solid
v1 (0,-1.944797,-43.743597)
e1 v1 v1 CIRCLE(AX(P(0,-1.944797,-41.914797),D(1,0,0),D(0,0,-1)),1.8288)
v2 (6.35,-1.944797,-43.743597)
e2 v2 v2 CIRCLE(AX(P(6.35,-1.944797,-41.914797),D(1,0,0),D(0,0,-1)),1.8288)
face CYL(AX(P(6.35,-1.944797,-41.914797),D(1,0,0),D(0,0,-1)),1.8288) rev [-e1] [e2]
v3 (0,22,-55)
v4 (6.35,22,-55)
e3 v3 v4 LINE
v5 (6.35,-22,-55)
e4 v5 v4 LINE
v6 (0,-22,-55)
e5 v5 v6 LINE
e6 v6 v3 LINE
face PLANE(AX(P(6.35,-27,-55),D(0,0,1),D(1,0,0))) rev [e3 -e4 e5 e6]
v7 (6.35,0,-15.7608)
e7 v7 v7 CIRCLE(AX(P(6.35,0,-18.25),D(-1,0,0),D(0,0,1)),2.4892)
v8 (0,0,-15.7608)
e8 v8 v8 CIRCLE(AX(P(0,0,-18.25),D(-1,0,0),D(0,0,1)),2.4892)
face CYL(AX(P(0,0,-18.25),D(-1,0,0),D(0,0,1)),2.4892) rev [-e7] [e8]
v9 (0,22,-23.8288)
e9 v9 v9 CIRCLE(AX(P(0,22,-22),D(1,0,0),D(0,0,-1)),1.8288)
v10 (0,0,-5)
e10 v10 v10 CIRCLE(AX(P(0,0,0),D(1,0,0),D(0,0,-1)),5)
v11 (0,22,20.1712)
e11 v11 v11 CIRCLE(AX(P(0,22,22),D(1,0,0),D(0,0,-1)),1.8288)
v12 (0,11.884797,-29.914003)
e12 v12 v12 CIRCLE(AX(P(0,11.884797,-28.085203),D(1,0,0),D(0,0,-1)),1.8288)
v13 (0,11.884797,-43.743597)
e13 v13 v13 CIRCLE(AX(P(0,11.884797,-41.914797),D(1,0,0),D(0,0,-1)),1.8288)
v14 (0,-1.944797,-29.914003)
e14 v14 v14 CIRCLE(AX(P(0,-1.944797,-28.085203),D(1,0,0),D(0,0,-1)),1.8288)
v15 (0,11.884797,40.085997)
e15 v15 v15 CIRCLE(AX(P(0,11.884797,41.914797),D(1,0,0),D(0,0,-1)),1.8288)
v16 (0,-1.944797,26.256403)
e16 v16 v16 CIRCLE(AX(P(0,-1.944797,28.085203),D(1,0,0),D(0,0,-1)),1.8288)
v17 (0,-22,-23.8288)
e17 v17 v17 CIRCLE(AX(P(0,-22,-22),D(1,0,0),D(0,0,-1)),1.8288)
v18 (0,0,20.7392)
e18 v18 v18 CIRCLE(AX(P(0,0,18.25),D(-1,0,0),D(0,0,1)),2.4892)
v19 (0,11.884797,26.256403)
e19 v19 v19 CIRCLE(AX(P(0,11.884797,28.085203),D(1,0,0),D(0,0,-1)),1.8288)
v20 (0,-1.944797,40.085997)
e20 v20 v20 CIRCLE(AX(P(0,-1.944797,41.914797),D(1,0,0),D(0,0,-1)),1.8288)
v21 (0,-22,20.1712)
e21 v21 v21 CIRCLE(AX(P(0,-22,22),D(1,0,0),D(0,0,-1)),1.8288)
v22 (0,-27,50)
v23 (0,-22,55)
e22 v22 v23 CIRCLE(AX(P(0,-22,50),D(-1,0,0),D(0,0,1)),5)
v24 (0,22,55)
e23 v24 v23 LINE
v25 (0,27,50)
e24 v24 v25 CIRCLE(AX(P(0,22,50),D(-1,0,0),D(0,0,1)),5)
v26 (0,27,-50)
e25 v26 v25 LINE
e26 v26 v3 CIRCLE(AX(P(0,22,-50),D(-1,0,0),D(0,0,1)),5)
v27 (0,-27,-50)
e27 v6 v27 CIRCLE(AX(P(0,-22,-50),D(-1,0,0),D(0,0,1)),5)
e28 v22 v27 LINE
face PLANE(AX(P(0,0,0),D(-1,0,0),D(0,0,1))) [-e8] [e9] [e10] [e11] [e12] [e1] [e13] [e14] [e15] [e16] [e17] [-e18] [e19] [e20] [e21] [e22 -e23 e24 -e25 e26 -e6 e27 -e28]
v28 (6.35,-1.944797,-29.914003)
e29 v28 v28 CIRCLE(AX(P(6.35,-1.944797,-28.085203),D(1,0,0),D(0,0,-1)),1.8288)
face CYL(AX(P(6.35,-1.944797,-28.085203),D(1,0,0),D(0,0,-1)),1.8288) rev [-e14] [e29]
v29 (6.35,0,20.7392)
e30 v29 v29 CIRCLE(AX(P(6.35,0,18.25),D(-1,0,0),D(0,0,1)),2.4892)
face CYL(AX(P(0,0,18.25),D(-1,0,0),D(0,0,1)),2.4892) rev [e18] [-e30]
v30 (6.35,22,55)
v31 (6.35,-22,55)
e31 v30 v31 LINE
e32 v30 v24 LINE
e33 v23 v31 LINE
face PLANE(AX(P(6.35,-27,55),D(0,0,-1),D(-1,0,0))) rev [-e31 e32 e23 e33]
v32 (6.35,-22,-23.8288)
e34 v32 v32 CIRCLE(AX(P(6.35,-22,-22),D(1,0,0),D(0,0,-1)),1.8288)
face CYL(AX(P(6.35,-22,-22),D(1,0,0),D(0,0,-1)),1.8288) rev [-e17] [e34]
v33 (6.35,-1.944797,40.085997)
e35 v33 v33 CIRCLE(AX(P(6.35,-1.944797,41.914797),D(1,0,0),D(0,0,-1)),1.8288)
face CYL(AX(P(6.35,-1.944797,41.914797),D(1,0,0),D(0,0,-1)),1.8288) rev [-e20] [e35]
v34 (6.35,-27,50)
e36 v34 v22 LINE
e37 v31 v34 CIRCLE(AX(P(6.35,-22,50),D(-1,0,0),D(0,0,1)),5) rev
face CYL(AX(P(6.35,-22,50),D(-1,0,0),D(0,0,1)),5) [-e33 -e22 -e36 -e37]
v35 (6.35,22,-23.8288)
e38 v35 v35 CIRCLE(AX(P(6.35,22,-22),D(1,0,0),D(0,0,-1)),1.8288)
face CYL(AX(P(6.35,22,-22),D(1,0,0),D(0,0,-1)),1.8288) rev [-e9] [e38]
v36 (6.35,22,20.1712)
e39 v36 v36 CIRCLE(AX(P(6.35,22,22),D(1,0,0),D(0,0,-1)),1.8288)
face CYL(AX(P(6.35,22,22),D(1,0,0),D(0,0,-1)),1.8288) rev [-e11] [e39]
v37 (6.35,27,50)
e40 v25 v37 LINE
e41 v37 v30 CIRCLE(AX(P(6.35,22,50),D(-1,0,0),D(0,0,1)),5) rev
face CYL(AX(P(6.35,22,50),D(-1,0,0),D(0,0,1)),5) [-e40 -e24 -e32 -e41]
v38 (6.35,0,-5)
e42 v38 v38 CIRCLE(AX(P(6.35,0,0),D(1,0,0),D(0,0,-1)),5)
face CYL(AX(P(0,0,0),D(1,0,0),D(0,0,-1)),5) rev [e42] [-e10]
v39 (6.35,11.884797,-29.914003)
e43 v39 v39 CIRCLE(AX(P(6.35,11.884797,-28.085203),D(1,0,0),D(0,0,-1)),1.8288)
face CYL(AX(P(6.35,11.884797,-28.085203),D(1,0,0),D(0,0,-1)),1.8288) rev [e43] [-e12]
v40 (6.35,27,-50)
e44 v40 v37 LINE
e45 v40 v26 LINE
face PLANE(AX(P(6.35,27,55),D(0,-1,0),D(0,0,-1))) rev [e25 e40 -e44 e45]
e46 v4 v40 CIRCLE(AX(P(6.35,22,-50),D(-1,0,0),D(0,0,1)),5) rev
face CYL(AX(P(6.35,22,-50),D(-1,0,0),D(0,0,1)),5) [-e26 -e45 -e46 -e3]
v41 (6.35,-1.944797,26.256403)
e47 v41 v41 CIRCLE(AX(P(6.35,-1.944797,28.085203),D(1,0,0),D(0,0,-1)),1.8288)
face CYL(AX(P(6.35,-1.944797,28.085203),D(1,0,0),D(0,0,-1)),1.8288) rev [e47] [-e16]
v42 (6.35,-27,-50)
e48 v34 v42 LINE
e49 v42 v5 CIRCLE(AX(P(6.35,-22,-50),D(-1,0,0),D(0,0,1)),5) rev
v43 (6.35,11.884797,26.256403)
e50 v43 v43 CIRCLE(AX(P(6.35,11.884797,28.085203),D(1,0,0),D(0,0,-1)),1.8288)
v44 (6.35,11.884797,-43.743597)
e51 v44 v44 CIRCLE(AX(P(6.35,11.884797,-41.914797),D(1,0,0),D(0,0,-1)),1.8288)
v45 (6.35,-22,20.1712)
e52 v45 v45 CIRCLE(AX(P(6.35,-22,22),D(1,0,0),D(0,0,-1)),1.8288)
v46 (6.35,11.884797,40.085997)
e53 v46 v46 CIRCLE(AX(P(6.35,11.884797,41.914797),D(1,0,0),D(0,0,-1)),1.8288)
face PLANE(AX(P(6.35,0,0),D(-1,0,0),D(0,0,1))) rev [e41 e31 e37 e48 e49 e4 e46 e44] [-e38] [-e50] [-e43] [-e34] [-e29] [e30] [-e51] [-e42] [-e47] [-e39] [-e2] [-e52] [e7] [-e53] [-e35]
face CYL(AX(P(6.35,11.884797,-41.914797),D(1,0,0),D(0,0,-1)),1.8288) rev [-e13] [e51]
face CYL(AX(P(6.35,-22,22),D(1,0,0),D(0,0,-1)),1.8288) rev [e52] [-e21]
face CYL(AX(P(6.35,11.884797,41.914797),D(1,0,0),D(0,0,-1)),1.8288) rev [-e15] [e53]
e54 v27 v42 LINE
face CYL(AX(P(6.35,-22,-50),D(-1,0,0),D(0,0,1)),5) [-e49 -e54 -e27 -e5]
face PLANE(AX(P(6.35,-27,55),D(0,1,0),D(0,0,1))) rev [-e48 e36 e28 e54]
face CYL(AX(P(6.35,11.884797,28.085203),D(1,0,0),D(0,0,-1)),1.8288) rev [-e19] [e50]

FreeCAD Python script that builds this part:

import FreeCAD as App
import Part
import Sketcher
Q = App.Units.Quantity


def edges_at(feature, points):
    """Names of the edges that pass closest to the given points."""
    edges = feature.Shape.Edges
    near = lambda p: min(range(len(edges)), key=lambda i: edges[i].distToShape(Part.Vertex(*p))[0])
    return sorted({f"Edge{near(p) + 1}" for p in points})


def add_polygon(sketch, points):
    """Adds a closed chain of lines whose ends are joined by coincident constraints."""
    first, n = sketch.GeometryCount, len(points)
    for a, b in zip(points, points[1:] + points[:1]):
        sketch.addGeometry(Part.LineSegment(App.Vector(*a, 0), App.Vector(*b, 0)), False)
    for i in range(n):
        sketch.addConstraint(Sketcher.Constraint("Coincident", first + i, 2, first + (i + 1) % n, 1))

doc = App.newDocument("Part")
body = doc.addObject("PartDesign::Body", "Body")

sketch1 = body.newObject("Sketcher::SketchObject", "Sketch")
sketch1.AttachmentSupport = (doc.getObject("YZ_Plane"), [""])
sketch1.MapMode = "FlatFace"
add_polygon(sketch1, [(27, 55), (-27, 55), (-27, -55), (27, -55)])
sketch1.addConstraint([
    Sketcher.Constraint("Horizontal", 0),
    Sketcher.Constraint("Vertical", 1),
    Sketcher.Constraint("Horizontal", 2),
    Sketcher.Constraint("Vertical", 3),
    Sketcher.Constraint("Symmetric", 0, 2, 2, 2, -1, 1),
    Sketcher.Constraint("DistanceX", 0, 2, 0, 1, Q("54 mm")),
    Sketcher.Constraint("DistanceY", 1, 2, 1, 1, Q("110 mm")),
])
pad1 = body.newObject("PartDesign::Pad", "Pad")
pad1.Profile = sketch1
pad1.Length = 6.35
doc.recompute()

fillet = body.newObject("PartDesign::Fillet", "Fillet")
fillet.Base = (pad1, edges_at(pad1, [
    (3.175, -27, -55),
    (3.175, -27, 55),
    (3.175, 27, 55),
    (3.175, 27, -55),
]))
fillet.Radius = 5

sketch2 = body.newObject("Sketcher::SketchObject", "Sketch001")
sketch2.AttachmentSupport = (doc.getObject("YZ_Plane"), [""])
sketch2.MapMode = "FlatFace"
sketch2.AttachmentOffset = App.Placement(App.Vector(0, 0, 6.35), App.Rotation())
sketch2.addGeometry([
    Part.Circle(App.Vector(22, 22, 0), App.Vector(0, 0, 1), 1.8288),
    Part.Circle(App.Vector(22, -22, 0), App.Vector(0, 0, 1), 1.8288),
    Part.Circle(App.Vector(-22, -22, 0), App.Vector(0, 0, 1), 1.8288),
    Part.Circle(App.Vector(-22, 22, 0), App.Vector(0, 0, 1), 1.8288),
], False)
sketch2.addConstraint([
    Sketcher.Constraint("Equal", 0, 1),
    Sketcher.Constraint("Equal", 1, 2),
    Sketcher.Constraint("Equal", 2, 3),
    Sketcher.Constraint("Symmetric", 0, 3, 2, 3, -1, 1),
    Sketcher.Constraint("Symmetric", 1, 3, 3, 3, -1, 1),
    Sketcher.Constraint("Symmetric", 1, 3, 2, 3, -2),
    Sketcher.Constraint("DistanceX", -1, 1, 0, 3, Q("22 mm")),
    Sketcher.Constraint("DistanceY", -1, 1, 0, 3, Q("22 mm")),
    Sketcher.Constraint("Diameter", 0, Q("3.6576 mm")),
])
doc.recompute()
hole = body.newObject("PartDesign::Hole", "Hole")
hole.Profile = sketch2
hole.ThreadType = "None"
hole.Diameter = 3.6576
hole.DepthType = "ThroughAll"

sketch3 = body.newObject("Sketcher::SketchObject", "Sketch002")
sketch3.AttachmentSupport = (doc.getObject("YZ_Plane"), [""])
sketch3.MapMode = "FlatFace"
sketch3.AttachmentOffset = App.Placement(App.Vector(0, 0, 6.35), App.Rotation())
sketch3.addGeometry(Part.Circle(App.Vector(0, 0, 0), App.Vector(0, 0, 1), 5), False)
sketch3.addConstraint([
    Sketcher.Constraint("Coincident", 0, 3, -1, 1),
    Sketcher.Constraint("Diameter", 0, Q("10 mm")),
])
pocket1 = body.newObject("PartDesign::Pocket", "Pocket")
pocket1.Profile = sketch3
pocket1.Type = "ThroughAll"

sketch4 = body.newObject("Sketcher::SketchObject", "Sketch003")
sketch4.AttachmentSupport = (doc.getObject("YZ_Plane"), [""])
sketch4.MapMode = "FlatFace"
sketch4.AttachmentOffset = App.Placement(App.Vector(0, 0, 6.35), App.Rotation())
sketch4.addGeometry([
    Part.Circle(App.Vector(11.884797, 41.914797, 0), App.Vector(0, 0, 1), 1.8288),
    Part.Circle(App.Vector(11.884797, 28.085203, 0), App.Vector(0, 0, 1), 1.8288),
    Part.Circle(App.Vector(-1.944797, 28.085203, 0), App.Vector(0, 0, 1), 1.8288),
    Part.Circle(App.Vector(-1.944797, 41.914797, 0), App.Vector(0, 0, 1), 1.8288),
    Part.Circle(App.Vector(11.884797, -28.085203, 0), App.Vector(0, 0, 1), 1.8288),
    Part.Circle(App.Vector(-1.944797, -28.085203, 0), App.Vector(0, 0, 1), 1.8288),
    Part.Circle(App.Vector(-1.944797, -41.914797, 0), App.Vector(0, 0, 1), 1.8288),
    Part.Circle(App.Vector(11.884797, -41.914797, 0), App.Vector(0, 0, 1), 1.8288),
], False)
sketch4.addConstraint([
    Sketcher.Constraint("Equal", 0, 1),
    Sketcher.Constraint("Equal", 1, 2),
    Sketcher.Constraint("Equal", 2, 3),
    Sketcher.Constraint("Equal", 3, 4),
    Sketcher.Constraint("Equal", 4, 5),
    Sketcher.Constraint("Equal", 5, 6),
    Sketcher.Constraint("Equal", 6, 7),
    Sketcher.Constraint("Symmetric", 1, 3, 4, 3, -1),
    Sketcher.Constraint("Symmetric", 2, 3, 5, 3, -1),
    Sketcher.Constraint("Symmetric", 3, 3, 6, 3, -1),
    Sketcher.Constraint("Symmetric", 0, 3, 7, 3, -1),
    Sketcher.Constraint("Horizontal", 1, 3, 2, 3),
    Sketcher.Constraint("Horizontal", 0, 3, 3, 3),
    Sketcher.Constraint("Vertical", 0, 3, 1, 3),
    Sketcher.Constraint("Vertical", 2, 3, 3, 3),
    Sketcher.Constraint("DistanceY", 4, 3, 0, 3, Q("70 mm")),
    Sketcher.Constraint("Diameter", 0, Q("3.6576 mm")),
    Sketcher.Constraint("DistanceX", -1, 1, 0, 3, Q("11.884797 mm")),
    Sketcher.Constraint("DistanceY", -1, 1, 0, 3, Q("41.914797 mm")),
    Sketcher.Constraint("DistanceX", 2, 3, -1, 1, Q("1.944797 mm")),
])
doc.recompute()
hole2 = body.newObject("PartDesign::Hole", "Hole001")
hole2.Profile = sketch4
hole2.ThreadType = "None"
hole2.Diameter = 3.6576
hole2.DepthType = "ThroughAll"

sketch5 = body.newObject("Sketcher::SketchObject", "Sketch004")
sketch5.AttachmentSupport = (doc.getObject("YZ_Plane"), [""])
sketch5.MapMode = "FlatFace"
sketch5.addGeometry([
    Part.Circle(App.Vector(0, 18.25, 0), App.Vector(0, 0, 1), 2.4892),
    Part.Circle(App.Vector(0, -18.25, 0), App.Vector(0, 0, 1), 2.4892),
], False)
sketch5.addConstraint([
    Sketcher.Constraint("Equal", 0, 1),
    Sketcher.Constraint("Symmetric", 0, 3, 1, 3, -1, 1),
    Sketcher.Constraint("PointOnObject", 0, 3, -2),
    Sketcher.Constraint("Diameter", 0, Q("4.9784 mm")),
    Sketcher.Constraint("DistanceY", 1, 3, 0, 3, Q("36.5 mm")),
])
doc.recompute()
hole3 = body.newObject("PartDesign::Hole", "Hole002")
hole3.Profile = sketch5
hole3.ThreadType = "None"
hole3.Diameter = 4.9784
hole3.DepthType = "ThroughAll"
hole3.Reversed = True

doc.recompute()
